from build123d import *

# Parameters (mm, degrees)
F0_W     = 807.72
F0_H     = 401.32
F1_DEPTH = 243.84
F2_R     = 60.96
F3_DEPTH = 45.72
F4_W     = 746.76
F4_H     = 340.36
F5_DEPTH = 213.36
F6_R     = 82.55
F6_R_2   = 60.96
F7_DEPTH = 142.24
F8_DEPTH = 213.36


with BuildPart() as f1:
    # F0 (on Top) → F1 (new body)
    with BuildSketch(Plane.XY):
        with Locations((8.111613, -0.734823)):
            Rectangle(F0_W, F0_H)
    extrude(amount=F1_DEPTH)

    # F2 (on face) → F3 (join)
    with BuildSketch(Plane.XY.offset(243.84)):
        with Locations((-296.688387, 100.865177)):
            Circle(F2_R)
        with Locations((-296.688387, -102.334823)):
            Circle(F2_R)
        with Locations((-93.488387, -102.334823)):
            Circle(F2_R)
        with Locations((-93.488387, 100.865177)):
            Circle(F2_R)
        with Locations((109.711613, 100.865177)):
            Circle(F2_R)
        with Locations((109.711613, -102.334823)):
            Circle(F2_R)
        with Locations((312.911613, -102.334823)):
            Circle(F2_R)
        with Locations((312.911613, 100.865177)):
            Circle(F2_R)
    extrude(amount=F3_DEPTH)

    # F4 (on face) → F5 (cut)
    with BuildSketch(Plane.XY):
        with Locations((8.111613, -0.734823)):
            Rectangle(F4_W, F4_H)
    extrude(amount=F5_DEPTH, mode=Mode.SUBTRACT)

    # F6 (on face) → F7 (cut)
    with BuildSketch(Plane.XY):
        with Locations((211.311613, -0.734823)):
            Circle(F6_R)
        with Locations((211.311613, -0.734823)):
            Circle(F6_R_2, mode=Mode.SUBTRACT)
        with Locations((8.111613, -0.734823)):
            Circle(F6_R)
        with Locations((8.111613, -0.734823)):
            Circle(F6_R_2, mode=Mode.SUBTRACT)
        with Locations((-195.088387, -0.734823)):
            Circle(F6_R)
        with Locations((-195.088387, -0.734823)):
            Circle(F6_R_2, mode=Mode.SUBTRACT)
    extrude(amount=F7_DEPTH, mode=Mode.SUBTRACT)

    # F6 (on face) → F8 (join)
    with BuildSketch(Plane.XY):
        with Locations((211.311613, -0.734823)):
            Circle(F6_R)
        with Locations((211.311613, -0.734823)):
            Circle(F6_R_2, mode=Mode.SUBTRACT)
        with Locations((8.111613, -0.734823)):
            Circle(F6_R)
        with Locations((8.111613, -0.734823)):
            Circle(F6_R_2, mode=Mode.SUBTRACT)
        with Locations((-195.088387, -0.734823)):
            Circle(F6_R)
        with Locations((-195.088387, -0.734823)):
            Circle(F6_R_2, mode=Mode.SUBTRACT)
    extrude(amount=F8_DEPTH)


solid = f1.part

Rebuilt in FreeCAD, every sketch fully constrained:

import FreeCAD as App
import Part
import Sketcher
from FreeCAD import Vector
Q = App.Units.Quantity


def add_polygon(sketch, points):
    """Adds a closed chain of lines whose ends are joined by coincident constraints."""
    first, n = sketch.GeometryCount, len(points)
    for a, b in zip(points, points[1:] + points[:1]):
        sketch.addGeometry(Part.LineSegment(App.Vector(*a, 0), App.Vector(*b, 0)), False)
    for i in range(n):
        sketch.addConstraint(Sketcher.Constraint("Coincident", first + i, 2, first + (i + 1) % n, 1))

doc = App.newDocument("Part")
body = doc.addObject("PartDesign::Body", "Body")

# Sketch on XY plane
sketch1 = body.newObject("Sketcher::SketchObject", "Sketch")
sketch1.AttachmentSupport = (doc.getObject("XY_Plane"), [""])
sketch1.MapMode = "FlatFace"
add_polygon(sketch1, [(-395.748387, 199.925177), (-395.748387, -201.394823), (411.971613, -201.394823), (411.971613, 199.925177)])  # lines 0-3
sketch1.addConstraint([
    Sketcher.Constraint("Vertical", 0),
    Sketcher.Constraint("Horizontal", 1),
    Sketcher.Constraint("Vertical", 2),
    Sketcher.Constraint("Horizontal", 3),
    Sketcher.Constraint("DistanceX", 1, 1, 1, 2, Q("31.8 in")),
    Sketcher.Constraint("DistanceY", 0, 2, 0, 1, Q("15.8 in")),
    Sketcher.Constraint("DistanceX", 0, 2, -1, 1, Q("395.748387 mm")),
    Sketcher.Constraint("DistanceY", 0, 2, -1, 1, Q("201.394823 mm")),
])
pad1 = body.newObject("PartDesign::Pad", "Pad")
pad1.Profile = sketch1
pad1.Length = Q("9.6 in")

# Sketch on XY plane
sketch2 = body.newObject("Sketcher::SketchObject", "Sketch001")
sketch2.AttachmentSupport = (doc.getObject("XY_Plane"), [""])
sketch2.MapMode = "FlatFace"
sketch2.AttachmentOffset = App.Placement(Vector(0, 0, 9.6 * 25.4), App.Rotation())
sketch2.addGeometry([
    Part.Circle(Vector(-296.688387, 100.865177, 0), Vector(0, 0, 1), 60.96),  # 0
    Part.Circle(Vector(-296.688387, -102.334823, 0), Vector(0, 0, 1), 60.96),  # 1
    Part.Circle(Vector(-93.488387, -102.334823, 0), Vector(0, 0, 1), 60.96),  # 2
    Part.Circle(Vector(-93.488387, 100.865177, 0), Vector(0, 0, 1), 60.96),  # 3
    Part.Circle(Vector(109.711613, 100.865177, 0), Vector(0, 0, 1), 60.96),  # 4
    Part.Circle(Vector(109.711613, -102.334823, 0), Vector(0, 0, 1), 60.96),  # 5
    Part.Circle(Vector(312.911613, -102.334823, 0), Vector(0, 0, 1), 60.96),  # 6
    Part.Circle(Vector(312.911613, 100.865177, 0), Vector(0, 0, 1), 60.96),  # 7
], False)
sketch2.addConstraint([
    Sketcher.Constraint("Equal", 0, 1),
    Sketcher.Constraint("Equal", 1, 2),
    Sketcher.Constraint("Equal", 2, 3),
    Sketcher.Constraint("Equal", 3, 4),
    Sketcher.Constraint("Equal", 4, 5),
    Sketcher.Constraint("Equal", 5, 6),
    Sketcher.Constraint("Equal", 6, 7),
    Sketcher.Constraint("Horizontal", 1, 3, 2, 3),
    Sketcher.Constraint("Horizontal", 0, 3, 3, 3),
    Sketcher.Constraint("Horizontal", 3, 3, 4, 3),
    Sketcher.Constraint("Horizontal", 2, 3, 5, 3),
    Sketcher.Constraint("Horizontal", 5, 3, 6, 3),
    Sketcher.Constraint("Horizontal", 4, 3, 7, 3),
    Sketcher.Constraint("Vertical", 0, 3, 1, 3),
    Sketcher.Constraint("Vertical", 2, 3, 3, 3),
    Sketcher.Constraint("Vertical", 4, 3, 5, 3),
    Sketcher.Constraint("Vertical", 6, 3, 7, 3),
    Sketcher.Constraint("Diameter", 0, Q("4.8 in")),
    Sketcher.Constraint("DistanceY", 1, 3, 0, 3, Q("8 in")),
    Sketcher.Constraint("DistanceX", 1, 3, 2, 3, Q("8 in")),
    Sketcher.Constraint("DistanceX", 3, 3, 4, 3, Q("8 in")),
    Sketcher.Constraint("DistanceX", 5, 3, 6, 3, Q("8 in")),
    Sketcher.Constraint("DistanceX", 0, 3, -1, 1, Q("296.688387 mm")),
    Sketcher.Constraint("DistanceY", -1, 1, 0, 3, Q("100.865177 mm")),
])
pad2 = body.newObject("PartDesign::Pad", "Pad001")
pad2.Profile = sketch2
pad2.Length = Q("1.8 in")

# Sketch on XY plane
sketch3 = body.newObject("Sketcher::SketchObject", "Sketch002")
sketch3.AttachmentSupport = (doc.getObject("XY_Plane"), [""])
sketch3.MapMode = "FlatFace"
add_polygon(sketch3, [(-365.268387, 169.445177), (-365.268387, -170.914823), (381.491613, -170.914823), (381.491613, 169.445177)])  # lines 0-3
sketch3.addConstraint([
    Sketcher.Constraint("Vertical", 0),
    Sketcher.Constraint("Horizontal", 1),
    Sketcher.Constraint("Vertical", 2),
    Sketcher.Constraint("Horizontal", 3),
    Sketcher.Constraint("DistanceX", 1, 1, 1, 2, Q("29.4 in")),
    Sketcher.Constraint("DistanceY", 0, 2, 0, 1, Q("13.4 in")),
    Sketcher.Constraint("DistanceX", 0, 2, -1, 1, Q("365.268387 mm")),
    Sketcher.Constraint("DistanceY", 0, 2, -1, 1, Q("170.914823 mm")),
])
pocket1 = body.newObject("PartDesign::Pocket", "Pocket")
pocket1.Profile = sketch3
pocket1.Length = Q("8.4 in")
pocket1.Reversed = True

# Sketch on XY plane
sketch4 = body.newObject("Sketcher::SketchObject", "Sketch003")
sketch4.AttachmentSupport = (doc.getObject("XY_Plane"), [""])
sketch4.MapMode = "FlatFace"
sketch4.addGeometry([
    Part.Circle(Vector(211.311613, -0.734823, 0), Vector(0, 0, 1), 82.55),  # 0
    Part.Circle(Vector(211.311613, -0.734823, 0), Vector(0, 0, 1), 60.96),  # 1
    Part.Circle(Vector(8.111613, -0.734823, 0), Vector(0, 0, 1), 82.55),  # 2
    Part.Circle(Vector(8.111613, -0.734823, 0), Vector(0, 0, 1), 60.96),  # 3
    Part.Circle(Vector(-195.088387, -0.734823, 0), Vector(0, 0, 1), 82.55),  # 4
    Part.Circle(Vector(-195.088387, -0.734823, 0), Vector(0, 0, 1), 60.96),  # 5
], False)
sketch4.addConstraint([
    Sketcher.Constraint("Coincident", 1, 3, 0, 3),
    Sketcher.Constraint("Coincident", 3, 3, 2, 3),
    Sketcher.Constraint("Coincident", 5, 3, 4, 3),
    Sketcher.Constraint("Equal", 0, 2),
    Sketcher.Constraint("Equal", 1, 3),
    Sketcher.Constraint("Equal", 2, 4),
    Sketcher.Constraint("Equal", 3, 5),
    Sketcher.Constraint("Horizontal", 1, 3, 2, 3),
    Sketcher.Constraint("Horizontal", 3, 3, 4, 3),
    Sketcher.Constraint("Diameter", 0, Q("6.5 in")),
    Sketcher.Constraint("Diameter", 1, Q("4.8 in")),
    Sketcher.Constraint("DistanceX", 2, 3, 0, 3, Q("8 in")),
    Sketcher.Constraint("DistanceX", 4, 3, 2, 3, Q("8 in")),
    Sketcher.Constraint("DistanceX", -1, 1, 0, 3, Q("211.311613 mm")),
    Sketcher.Constraint("DistanceY", 0, 3, -1, 1, Q("0.734823 mm")),
])
pocket2 = body.newObject("PartDesign::Pocket", "Pocket001")
pocket2.Profile = sketch4
pocket2.Length = Q("5.6 in")
pocket2.Reversed = True

# Sketch on XY plane
sketch5 = body.newObject("Sketcher::SketchObject", "Sketch004")
sketch5.AttachmentSupport = (doc.getObject("XY_Plane"), [""])
sketch5.MapMode = "FlatFace"
sketch5.addGeometry([
    Part.Circle(Vector(211.311613, -0.734823, 0), Vector(0, 0, 1), 82.55),  # 0
    Part.Circle(Vector(211.311613, -0.734823, 0), Vector(0, 0, 1), 60.96),  # 1
    Part.Circle(Vector(8.111613, -0.734823, 0), Vector(0, 0, 1), 82.55),  # 2
    Part.Circle(Vector(8.111613, -0.734823, 0), Vector(0, 0, 1), 60.96),  # 3
    Part.Circle(Vector(-195.088387, -0.734823, 0), Vector(0, 0, 1), 82.55),  # 4
    Part.Circle(Vector(-195.088387, -0.734823, 0), Vector(0, 0, 1), 60.96),  # 5
], False)
sketch5.addConstraint([
    Sketcher.Constraint("Coincident", 1, 3, 0, 3),
    Sketcher.Constraint("Coincident", 3, 3, 2, 3),
    Sketcher.Constraint("Coincident", 5, 3, 4, 3),
    Sketcher.Constraint("Equal", 0, 2),
    Sketcher.Constraint("Equal", 1, 3),
    Sketcher.Constraint("Equal", 2, 4),
    Sketcher.Constraint("Equal", 3, 5),
    Sketcher.Constraint("Horizontal", 1, 3, 2, 3),
    Sketcher.Constraint("Horizontal", 3, 3, 4, 3),
    Sketcher.Constraint("Diameter", 0, Q("6.5 in")),
    Sketcher.Constraint("Diameter", 1, Q("4.8 in")),
    Sketcher.Constraint("DistanceX", 2, 3, 0, 3, Q("8 in")),
    Sketcher.Constraint("DistanceX", 4, 3, 2, 3, Q("8 in")),
    Sketcher.Constraint("DistanceX", -1, 1, 0, 3, Q("211.311613 mm")),
    Sketcher.Constraint("DistanceY", 0, 3, -1, 1, Q("0.734823 mm")),
])
pad3 = body.newObject("PartDesign::Pad", "Pad002")
pad3.Profile = sketch5
pad3.Length = Q("8.4 in")

doc.recompute()
